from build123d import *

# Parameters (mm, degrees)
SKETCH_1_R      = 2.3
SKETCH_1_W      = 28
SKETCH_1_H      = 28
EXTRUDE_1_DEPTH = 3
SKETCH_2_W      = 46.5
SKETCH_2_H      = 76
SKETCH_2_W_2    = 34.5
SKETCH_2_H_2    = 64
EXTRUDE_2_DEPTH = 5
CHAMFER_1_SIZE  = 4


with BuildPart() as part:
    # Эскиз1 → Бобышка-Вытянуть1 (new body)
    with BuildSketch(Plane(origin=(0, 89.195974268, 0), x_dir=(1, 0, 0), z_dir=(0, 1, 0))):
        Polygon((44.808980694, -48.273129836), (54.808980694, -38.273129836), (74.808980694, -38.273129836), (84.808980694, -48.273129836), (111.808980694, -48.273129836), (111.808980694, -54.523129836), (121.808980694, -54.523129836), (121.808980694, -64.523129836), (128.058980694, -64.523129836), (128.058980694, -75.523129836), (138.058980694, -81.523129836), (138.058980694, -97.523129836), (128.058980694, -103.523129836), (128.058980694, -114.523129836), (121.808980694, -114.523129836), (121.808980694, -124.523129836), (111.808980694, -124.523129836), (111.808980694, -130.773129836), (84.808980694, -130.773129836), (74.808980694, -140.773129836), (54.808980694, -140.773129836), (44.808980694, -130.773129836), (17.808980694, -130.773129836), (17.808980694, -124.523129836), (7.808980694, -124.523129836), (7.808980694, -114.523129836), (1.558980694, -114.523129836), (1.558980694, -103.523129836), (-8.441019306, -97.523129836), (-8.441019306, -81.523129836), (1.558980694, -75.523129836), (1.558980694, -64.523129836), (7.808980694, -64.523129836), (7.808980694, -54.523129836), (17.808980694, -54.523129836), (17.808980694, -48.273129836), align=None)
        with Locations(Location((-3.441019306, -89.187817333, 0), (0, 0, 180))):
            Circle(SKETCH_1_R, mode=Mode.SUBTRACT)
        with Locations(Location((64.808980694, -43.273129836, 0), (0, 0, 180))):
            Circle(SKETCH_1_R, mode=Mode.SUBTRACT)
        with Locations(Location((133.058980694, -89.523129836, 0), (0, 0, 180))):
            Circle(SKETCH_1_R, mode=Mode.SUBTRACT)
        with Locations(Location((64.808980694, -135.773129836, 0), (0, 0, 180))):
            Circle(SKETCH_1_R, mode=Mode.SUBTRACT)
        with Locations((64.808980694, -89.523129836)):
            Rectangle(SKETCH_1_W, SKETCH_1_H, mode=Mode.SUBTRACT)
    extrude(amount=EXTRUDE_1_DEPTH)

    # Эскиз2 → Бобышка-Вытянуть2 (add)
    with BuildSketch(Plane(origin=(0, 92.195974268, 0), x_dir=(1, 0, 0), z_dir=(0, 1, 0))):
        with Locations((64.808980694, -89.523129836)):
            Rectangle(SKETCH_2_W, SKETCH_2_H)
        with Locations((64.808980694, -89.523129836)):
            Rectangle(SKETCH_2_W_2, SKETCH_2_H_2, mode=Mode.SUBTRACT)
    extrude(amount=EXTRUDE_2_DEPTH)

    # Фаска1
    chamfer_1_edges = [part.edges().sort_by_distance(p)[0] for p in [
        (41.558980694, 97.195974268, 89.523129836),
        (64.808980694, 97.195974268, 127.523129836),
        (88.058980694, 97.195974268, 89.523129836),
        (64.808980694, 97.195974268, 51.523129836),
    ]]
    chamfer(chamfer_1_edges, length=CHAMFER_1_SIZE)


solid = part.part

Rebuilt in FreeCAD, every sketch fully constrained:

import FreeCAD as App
import Part
import Sketcher
from FreeCAD import Vector
Q = App.Units.Quantity


def edges_at(feature, points):
    """Names of the edges that pass closest to the given points."""
    edges = feature.Shape.Edges
    near = lambda p: min(range(len(edges)), key=lambda i: edges[i].distToShape(Part.Vertex(*p))[0])
    return sorted({f"Edge{near(p) + 1}" for p in points})

doc = App.newDocument("Part")
body = doc.addObject("PartDesign::Body", "Body")

sketch1 = doc.addObject("Sketcher::SketchObject", "Sketch")
body.addObject(sketch1)
sketch1.AttachmentSupport = (doc.XZ_Plane, [""])
sketch1.MapMode = "FlatFace"
sketch1.AttachmentOffset = App.Placement(Vector(0, 0, -89.195974), App.Rotation())
sketch1.addGeometry(Part.LineSegment(Vector(54.808981, 38.27313, 0), Vector(44.808981, 48.27313, 0)), False)
sketch1.addGeometry(Part.LineSegment(Vector(44.808981, 48.27313, 0), Vector(17.808981, 48.27313, 0)), False)
sketch1.addGeometry(Part.LineSegment(Vector(17.808981, 48.27313, 0), Vector(17.808981, 54.52313, 0)), False)
sketch1.addGeometry(Part.LineSegment(Vector(17.808981, 54.52313, 0), Vector(7.808981, 54.52313, 0)), False)
sketch1.addGeometry(Part.LineSegment(Vector(7.808981, 54.52313, 0), Vector(7.808981, 64.52313, 0)), False)
sketch1.addGeometry(Part.LineSegment(Vector(7.808981, 64.52313, 0), Vector(1.558981, 64.52313, 0)), False)
sketch1.addGeometry(Part.LineSegment(Vector(1.558981, 64.52313, 0), Vector(1.558981, 75.52313, 0)), False)
sketch1.addGeometry(Part.LineSegment(Vector(1.558981, 75.52313, 0), Vector(-8.441019, 81.52313, 0)), False)
sketch1.addGeometry(Part.LineSegment(Vector(-8.441019, 81.52313, 0), Vector(-8.441019, 97.52313, 0)), False)
sketch1.addGeometry(Part.LineSegment(Vector(-8.441019, 97.52313, 0), Vector(1.558981, 103.52313, 0)), False)
sketch1.addGeometry(Part.LineSegment(Vector(1.558981, 103.52313, 0), Vector(1.558981, 114.52313, 0)), False)
sketch1.addGeometry(Part.LineSegment(Vector(1.558981, 114.52313, 0), Vector(7.808981, 114.52313, 0)), False)
sketch1.addGeometry(Part.LineSegment(Vector(7.808981, 114.52313, 0), Vector(7.808981, 124.52313, 0)), False)
sketch1.addGeometry(Part.LineSegment(Vector(7.808981, 124.52313, 0), Vector(17.808981, 124.52313, 0)), False)
sketch1.addGeometry(Part.LineSegment(Vector(17.808981, 124.52313, 0), Vector(17.808981, 130.77313, 0)), False)
sketch1.addGeometry(Part.LineSegment(Vector(17.808981, 130.77313, 0), Vector(44.808981, 130.77313, 0)), False)
sketch1.addGeometry(Part.LineSegment(Vector(44.808981, 130.77313, 0), Vector(54.808981, 140.77313, 0)), False)
sketch1.addGeometry(Part.LineSegment(Vector(54.808981, 140.77313, 0), Vector(74.808981, 140.77313, 0)), False)
sketch1.addGeometry(Part.LineSegment(Vector(74.808981, 140.77313, 0), Vector(84.808981, 130.77313, 0)), False)
sketch1.addGeometry(Part.LineSegment(Vector(84.808981, 130.77313, 0), Vector(111.808981, 130.77313, 0)), False)
sketch1.addGeometry(Part.LineSegment(Vector(111.808981, 130.77313, 0), Vector(111.808981, 124.52313, 0)), False)
sketch1.addGeometry(Part.LineSegment(Vector(111.808981, 124.52313, 0), Vector(121.808981, 124.52313, 0)), False)
sketch1.addGeometry(Part.LineSegment(Vector(121.808981, 124.52313, 0), Vector(121.808981, 114.52313, 0)), False)
sketch1.addGeometry(Part.LineSegment(Vector(121.808981, 114.52313, 0), Vector(128.058981, 114.52313, 0)), False)
sketch1.addGeometry(Part.LineSegment(Vector(128.058981, 114.52313, 0), Vector(128.058981, 103.52313, 0)), False)
sketch1.addGeometry(Part.LineSegment(Vector(128.058981, 103.52313, 0), Vector(138.058981, 97.52313, 0)), False)
sketch1.addGeometry(Part.LineSegment(Vector(138.058981, 97.52313, 0), Vector(138.058981, 81.52313, 0)), False)
sketch1.addGeometry(Part.LineSegment(Vector(138.058981, 81.52313, 0), Vector(128.058981, 75.52313, 0)), False)
sketch1.addGeometry(Part.LineSegment(Vector(128.058981, 75.52313, 0), Vector(128.058981, 64.52313, 0)), False)
sketch1.addGeometry(Part.LineSegment(Vector(128.058981, 64.52313, 0), Vector(121.808981, 64.52313, 0)), False)
sketch1.addGeometry(Part.LineSegment(Vector(121.808981, 64.52313, 0), Vector(121.808981, 54.52313, 0)), False)
sketch1.addGeometry(Part.LineSegment(Vector(121.808981, 54.52313, 0), Vector(111.808981, 54.52313, 0)), False)
sketch1.addGeometry(Part.LineSegment(Vector(111.808981, 54.52313, 0), Vector(111.808981, 48.27313, 0)), False)
sketch1.addGeometry(Part.LineSegment(Vector(111.808981, 48.27313, 0), Vector(84.808981, 48.27313, 0)), False)
sketch1.addGeometry(Part.LineSegment(Vector(84.808981, 48.27313, 0), Vector(74.808981, 38.27313, 0)), False)
sketch1.addGeometry(Part.LineSegment(Vector(74.808981, 38.27313, 0), Vector(54.808981, 38.27313, 0)), False)
sketch1.addGeometry(Part.Circle(Vector(64.808981, 135.77313, 0), Vector(0, 0, 1), 2.3), False)
sketch1.addGeometry(Part.Circle(Vector(133.058981, 89.52313, 0), Vector(0, 0, 1), 2.3), False)
sketch1.addGeometry(Part.LineSegment(Vector(50.808981, 103.52313, 0), Vector(50.808981, 75.52313, 0)), False)
sketch1.addGeometry(Part.LineSegment(Vector(50.808981, 75.52313, 0), Vector(78.808981, 75.52313, 0)), False)
sketch1.addGeometry(Part.LineSegment(Vector(78.808981, 75.52313, 0), Vector(78.808981, 103.52313, 0)), False)
sketch1.addGeometry(Part.LineSegment(Vector(78.808981, 103.52313, 0), Vector(50.808981, 103.52313, 0)), False)
sketch1.addGeometry(Part.Circle(Vector(-3.441019, 89.187817, 0), Vector(0, 0, 1), 2.3), False)
sketch1.addGeometry(Part.Circle(Vector(64.808981, 43.27313, 0), Vector(0, 0, 1), 2.3), False)
sketch1.addConstraint(Sketcher.Constraint("Coincident", 0, 2, 1, 1))
sketch1.addConstraint(Sketcher.Constraint("Coincident", 1, 2, 2, 1))
sketch1.addConstraint(Sketcher.Constraint("Coincident", 2, 2, 3, 1))
sketch1.addConstraint(Sketcher.Constraint("Coincident", 3, 2, 4, 1))
sketch1.addConstraint(Sketcher.Constraint("Coincident", 4, 2, 5, 1))
sketch1.addConstraint(Sketcher.Constraint("Coincident", 5, 2, 6, 1))
sketch1.addConstraint(Sketcher.Constraint("Coincident", 6, 2, 7, 1))
sketch1.addConstraint(Sketcher.Constraint("Coincident", 7, 2, 8, 1))
sketch1.addConstraint(Sketcher.Constraint("Coincident", 8, 2, 9, 1))
sketch1.addConstraint(Sketcher.Constraint("Coincident", 9, 2, 10, 1))
sketch1.addConstraint(Sketcher.Constraint("Coincident", 10, 2, 11, 1))
sketch1.addConstraint(Sketcher.Constraint("Coincident", 11, 2, 12, 1))
sketch1.addConstraint(Sketcher.Constraint("Coincident", 12, 2, 13, 1))
sketch1.addConstraint(Sketcher.Constraint("Coincident", 13, 2, 14, 1))
sketch1.addConstraint(Sketcher.Constraint("Coincident", 14, 2, 15, 1))
sketch1.addConstraint(Sketcher.Constraint("Coincident", 15, 2, 16, 1))
sketch1.addConstraint(Sketcher.Constraint("Coincident", 16, 2, 17, 1))
sketch1.addConstraint(Sketcher.Constraint("Coincident", 17, 2, 18, 1))
sketch1.addConstraint(Sketcher.Constraint("Coincident", 18, 2, 19, 1))
sketch1.addConstraint(Sketcher.Constraint("Coincident", 19, 2, 20, 1))
sketch1.addConstraint(Sketcher.Constraint("Coincident", 20, 2, 21, 1))
sketch1.addConstraint(Sketcher.Constraint("Coincident", 21, 2, 22, 1))
sketch1.addConstraint(Sketcher.Constraint("Coincident", 22, 2, 23, 1))
sketch1.addConstraint(Sketcher.Constraint("Coincident", 23, 2, 24, 1))
sketch1.addConstraint(Sketcher.Constraint("Coincident", 24, 2, 25, 1))
sketch1.addConstraint(Sketcher.Constraint("Coincident", 25, 2, 26, 1))
sketch1.addConstraint(Sketcher.Constraint("Coincident", 26, 2, 27, 1))
sketch1.addConstraint(Sketcher.Constraint("Coincident", 27, 2, 28, 1))
sketch1.addConstraint(Sketcher.Constraint("Coincident", 28, 2, 29, 1))
sketch1.addConstraint(Sketcher.Constraint("Coincident", 29, 2, 30, 1))
sketch1.addConstraint(Sketcher.Constraint("Coincident", 30, 2, 31, 1))
sketch1.addConstraint(Sketcher.Constraint("Coincident", 31, 2, 32, 1))
sketch1.addConstraint(Sketcher.Constraint("Coincident", 32, 2, 33, 1))
sketch1.addConstraint(Sketcher.Constraint("Coincident", 33, 2, 34, 1))
sketch1.addConstraint(Sketcher.Constraint("Coincident", 34, 2, 35, 1))
sketch1.addConstraint(Sketcher.Constraint("Coincident", 35, 2, 0, 1))
sketch1.addConstraint(Sketcher.Constraint("Coincident", 38, 2, 39, 1))
sketch1.addConstraint(Sketcher.Constraint("Coincident", 39, 2, 40, 1))
sketch1.addConstraint(Sketcher.Constraint("Coincident", 40, 2, 41, 1))
sketch1.addConstraint(Sketcher.Constraint("Coincident", 41, 2, 38, 1))
sketch1.addConstraint(Sketcher.Constraint("Horizontal", 1))
sketch1.addConstraint(Sketcher.Constraint("Vertical", 2))
sketch1.addConstraint(Sketcher.Constraint("Horizontal", 3))
sketch1.addConstraint(Sketcher.Constraint("Vertical", 4))
sketch1.addConstraint(Sketcher.Constraint("Horizontal", 5))
sketch1.addConstraint(Sketcher.Constraint("Vertical", 6))
sketch1.addConstraint(Sketcher.Constraint("Vertical", 8))
sketch1.addConstraint(Sketcher.Constraint("Vertical", 10))
sketch1.addConstraint(Sketcher.Constraint("Horizontal", 11))
sketch1.addConstraint(Sketcher.Constraint("Vertical", 12))
sketch1.addConstraint(Sketcher.Constraint("Horizontal", 13))
sketch1.addConstraint(Sketcher.Constraint("Vertical", 14))
sketch1.addConstraint(Sketcher.Constraint("Horizontal", 15))
sketch1.addConstraint(Sketcher.Constraint("Horizontal", 17))
sketch1.addConstraint(Sketcher.Constraint("Horizontal", 19))
sketch1.addConstraint(Sketcher.Constraint("Vertical", 20))
sketch1.addConstraint(Sketcher.Constraint("Horizontal", 21))
sketch1.addConstraint(Sketcher.Constraint("Vertical", 22))
sketch1.addConstraint(Sketcher.Constraint("Horizontal", 23))
sketch1.addConstraint(Sketcher.Constraint("Vertical", 24))
sketch1.addConstraint(Sketcher.Constraint("Vertical", 26))
sketch1.addConstraint(Sketcher.Constraint("Vertical", 28))
sketch1.addConstraint(Sketcher.Constraint("Horizontal", 29))
sketch1.addConstraint(Sketcher.Constraint("Vertical", 30))
sketch1.addConstraint(Sketcher.Constraint("Horizontal", 31))
sketch1.addConstraint(Sketcher.Constraint("Vertical", 32))
sketch1.addConstraint(Sketcher.Constraint("Horizontal", 33))
sketch1.addConstraint(Sketcher.Constraint("Horizontal", 35))
sketch1.addConstraint(Sketcher.Constraint("Vertical", 38))
sketch1.addConstraint(Sketcher.Constraint("Horizontal", 39))
sketch1.addConstraint(Sketcher.Constraint("Vertical", 40))
sketch1.addConstraint(Sketcher.Constraint("Horizontal", 41))
sketch1.addConstraint(Sketcher.Constraint("Equal", 36, 37))
sketch1.addConstraint(Sketcher.Constraint("Equal", 37, 42))
sketch1.addConstraint(Sketcher.Constraint("Equal", 42, 43))
sketch1.addConstraint(Sketcher.Constraint("Perpendicular", 0, 16))
sketch1.addConstraint(Sketcher.Constraint("Perpendicular", 16, 18))
sketch1.addConstraint(Sketcher.Constraint("Parallel", 7, 25))
sketch1.addConstraint(Sketcher.Constraint("Parallel", 9, 27))
sketch1.addConstraint(Sketcher.Constraint("Perpendicular", 18, 34))
sketch1.addConstraint(Sketcher.Constraint("Horizontal", 15, 2, 18, 2))
sketch1.addConstraint(Sketcher.Constraint("Horizontal", 13, 2, 20, 2))
sketch1.addConstraint(Sketcher.Constraint("Horizontal", 11, 2, 22, 2))
sketch1.addConstraint(Sketcher.Constraint("Horizontal", 9, 2, 24, 2))
sketch1.addConstraint(Sketcher.Constraint("Horizontal", 8, 2, 25, 2))
sketch1.addConstraint(Sketcher.Constraint("Horizontal", 7, 2, 26, 2))
sketch1.addConstraint(Sketcher.Constraint("Horizontal", 6, 2, 27, 2))
sketch1.addConstraint(Sketcher.Constraint("Horizontal", 5, 2, 28, 2))
sketch1.addConstraint(Sketcher.Constraint("Horizontal", 3, 2, 30, 2))
sketch1.addConstraint(Sketcher.Constraint("Horizontal", 1, 2, 32, 2))
sketch1.addConstraint(Sketcher.Constraint("Horizontal", 27, 2, 38, 2))
sketch1.addConstraint(Sketcher.Constraint("Horizontal", 24, 2, 40, 2))
sketch1.addConstraint(Sketcher.Constraint("Vertical", 36, 3, 43, 3))
sketch1.addConstraint(Sketcher.Constraint("Vertical", 6, 2, 9, 2))
sketch1.addConstraint(Sketcher.Constraint("Vertical", 4, 2, 11, 2))
sketch1.addConstraint(Sketcher.Constraint("Vertical", 2, 2, 13, 2))
sketch1.addConstraint(Sketcher.Constraint("Vertical", 0, 2, 15, 2))
sketch1.addConstraint(Sketcher.Constraint("Vertical", 24, 2, 27, 2))
sketch1.addConstraint(Sketcher.Constraint("Vertical", 22, 2, 29, 2))
sketch1.addConstraint(Sketcher.Constraint("Vertical", 20, 2, 31, 2))
sketch1.addConstraint(Sketcher.Constraint("Vertical", 18, 2, 33, 2))
sketch1.addConstraint(Sketcher.Constraint("Vertical", 17, 2, 34, 2))
sketch1.addConstraint(Sketcher.Constraint("Vertical", 16, 2, 35, 2))
sketch1.addConstraint(Sketcher.Constraint("Equal", 15, 19))
sketch1.addConstraint(Sketcher.Constraint("Equal", 13, 21))
sketch1.addConstraint(Sketcher.Constraint("Equal", 11, 23))
sketch1.addConstraint(Sketcher.Constraint("Equal", 29, 2))
sketch1.addConstraint(Sketcher.Constraint("Equal", 31, 4))
sketch1.addConstraint(Sketcher.Constraint("Equal", 6, 10))
sketch1.addConstraint(Sketcher.Constraint("Equal", 4, 12))
sketch1.addConstraint(Sketcher.Constraint("Equal", 2, 14))
sketch1.addConstraint(Sketcher.Constraint("Equal", 41, 38))
sketch1.addConstraint(Sketcher.Constraint("Diameter", 36, Q("4.6 mm")))
sketch1.addConstraint(Sketcher.Constraint("DistanceX", 1, 2, 1, 1, Q("27 mm")))
sketch1.addConstraint(Sketcher.Constraint("DistanceX", 3, 2, 3, 1, Q("10 mm")))
sketch1.addConstraint(Sketcher.Constraint("DistanceX", 17, 1, 17, 2, Q("20 mm")))
sketch1.addConstraint(Sketcher.Constraint("DistanceX", 39, 1, 39, 2, Q("28 mm")))
sketch1.addConstraint(Sketcher.Constraint("DistanceY", 6, 1, 6, 2, Q("11 mm")))
sketch1.addConstraint(Sketcher.Constraint("DistanceY", 8, 1, 8, 2, Q("16 mm")))
sketch1.addConstraint(Sketcher.Constraint("DistanceX", 0, 2, 43, 3, Q("20 mm")))
sketch1.addConstraint(Sketcher.Constraint("DistanceY", 43, 3, 0, 2, Q("5 mm")))
sketch1.addConstraint(Sketcher.Constraint("DistanceX", 42, 3, 5, 2, Q("5 mm")))
sketch1.addConstraint(Sketcher.Constraint("DistanceX", 7, 2, 42, 3, Q("5 mm")))
sketch1.addConstraint(Sketcher.Constraint("DistanceY", 15, 2, 36, 3, Q("5 mm")))
sketch1.addConstraint(Sketcher.Constraint("DistanceX", 16, 2, 36, 3, Q("10 mm")))
sketch1.addConstraint(Sketcher.Constraint("DistanceY", 37, 3, 20, 2, Q("35 mm")))
sketch1.addConstraint(Sketcher.Constraint("DistanceX", 23, 2, 37, 3, Q("5 mm")))
sketch1.addConstraint(Sketcher.Constraint("DistanceX", 0, 2, 38, 2, Q("6 mm")))
sketch1.addConstraint(Sketcher.Constraint("DistanceX", 5, 2, 5, 1, Q("6.25 mm")))
sketch1.addConstraint(Sketcher.Constraint("DistanceX", -1, 1, 36, 3, Q("64.808981 mm")))
sketch1.addConstraint(Sketcher.Constraint("DistanceY", -1, 1, 36, 3, Q("135.77313 mm")))
sketch1.addConstraint(Sketcher.Constraint("DistanceY", -1, 1, 42, 3, Q("89.187817 mm")))
pad1 = doc.addObject("PartDesign::Pad", "Pad")
body.addObject(pad1)
pad1.Profile = sketch1
pad1.Length = 3
pad1.Reversed = True

sketch2 = doc.addObject("Sketcher::SketchObject", "Sketch001")
body.addObject(sketch2)
sketch2.AttachmentSupport = (doc.XZ_Plane, [""])
sketch2.MapMode = "FlatFace"
sketch2.AttachmentOffset = App.Placement(Vector(0, 0, -92.195974), App.Rotation())
sketch2.addGeometry(Part.LineSegment(Vector(41.558981, 51.52313, 0), Vector(41.558981, 127.52313, 0)), False)
sketch2.addGeometry(Part.LineSegment(Vector(41.558981, 127.52313, 0), Vector(88.058981, 127.52313, 0)), False)
sketch2.addGeometry(Part.LineSegment(Vector(88.058981, 127.52313, 0), Vector(88.058981, 51.52313, 0)), False)
sketch2.addGeometry(Part.LineSegment(Vector(88.058981, 51.52313, 0), Vector(41.558981, 51.52313, 0)), False)
sketch2.addGeometry(Part.LineSegment(Vector(82.058981, 121.52313, 0), Vector(47.558981, 121.52313, 0)), False)
sketch2.addGeometry(Part.LineSegment(Vector(47.558981, 121.52313, 0), Vector(47.558981, 57.52313, 0)), False)
sketch2.addGeometry(Part.LineSegment(Vector(47.558981, 57.52313, 0), Vector(82.058981, 57.52313, 0)), False)
sketch2.addGeometry(Part.LineSegment(Vector(82.058981, 57.52313, 0), Vector(82.058981, 121.52313, 0)), False)
sketch2.addConstraint(Sketcher.Constraint("Coincident", 0, 2, 1, 1))
sketch2.addConstraint(Sketcher.Constraint("Coincident", 1, 2, 2, 1))
sketch2.addConstraint(Sketcher.Constraint("Coincident", 2, 2, 3, 1))
sketch2.addConstraint(Sketcher.Constraint("Coincident", 3, 2, 0, 1))
sketch2.addConstraint(Sketcher.Constraint("Coincident", 4, 2, 5, 1))
sketch2.addConstraint(Sketcher.Constraint("Coincident", 5, 2, 6, 1))
sketch2.addConstraint(Sketcher.Constraint("Coincident", 6, 2, 7, 1))
sketch2.addConstraint(Sketcher.Constraint("Coincident", 7, 2, 4, 1))
sketch2.addConstraint(Sketcher.Constraint("Vertical", 0))
sketch2.addConstraint(Sketcher.Constraint("Horizontal", 1))
sketch2.addConstraint(Sketcher.Constraint("Vertical", 2))
sketch2.addConstraint(Sketcher.Constraint("Horizontal", 3))
sketch2.addConstraint(Sketcher.Constraint("Horizontal", 4))
sketch2.addConstraint(Sketcher.Constraint("Vertical", 5))
sketch2.addConstraint(Sketcher.Constraint("Horizontal", 6))
sketch2.addConstraint(Sketcher.Constraint("Vertical", 7))
sketch2.addConstraint(Sketcher.Constraint("DistanceY", 0, 1, 0, 2, Q("76 mm")))
sketch2.addConstraint(Sketcher.Constraint("DistanceY", 5, 2, 5, 1, Q("64 mm")))
sketch2.addConstraint(Sketcher.Constraint("DistanceX", 1, 1, 1, 2, Q("46.5 mm")))
sketch2.addConstraint(Sketcher.Constraint("DistanceX", 4, 2, 4, 1, Q("34.5 mm")))
sketch2.addConstraint(Sketcher.Constraint("DistanceX", 0, 2, 4, 2, Q("6 mm")))
sketch2.addConstraint(Sketcher.Constraint("DistanceY", 4, 2, 0, 2, Q("6 mm")))
sketch2.addConstraint(Sketcher.Constraint("DistanceX", -1, 1, 0, 2, Q("41.558981 mm")))
sketch2.addConstraint(Sketcher.Constraint("DistanceY", -1, 1, 0, 2, Q("127.52313 mm")))
pad2 = doc.addObject("PartDesign::Pad", "Pad001")
body.addObject(pad2)
pad2.Profile = sketch2
pad2.Length = 5
pad2.Reversed = True
doc.recompute()

chamfer = doc.addObject("PartDesign::Chamfer", "Chamfer")
body.addObject(chamfer)
chamfer.Base = (pad2, edges_at(pad2, [
    (41.559, 97.196, 89.523),
    (64.809, 97.196, 127.523),
    (88.059, 97.196, 89.523),
    (64.809, 97.196, 51.523),
]))
chamfer.Size = 4

doc.recompute()
